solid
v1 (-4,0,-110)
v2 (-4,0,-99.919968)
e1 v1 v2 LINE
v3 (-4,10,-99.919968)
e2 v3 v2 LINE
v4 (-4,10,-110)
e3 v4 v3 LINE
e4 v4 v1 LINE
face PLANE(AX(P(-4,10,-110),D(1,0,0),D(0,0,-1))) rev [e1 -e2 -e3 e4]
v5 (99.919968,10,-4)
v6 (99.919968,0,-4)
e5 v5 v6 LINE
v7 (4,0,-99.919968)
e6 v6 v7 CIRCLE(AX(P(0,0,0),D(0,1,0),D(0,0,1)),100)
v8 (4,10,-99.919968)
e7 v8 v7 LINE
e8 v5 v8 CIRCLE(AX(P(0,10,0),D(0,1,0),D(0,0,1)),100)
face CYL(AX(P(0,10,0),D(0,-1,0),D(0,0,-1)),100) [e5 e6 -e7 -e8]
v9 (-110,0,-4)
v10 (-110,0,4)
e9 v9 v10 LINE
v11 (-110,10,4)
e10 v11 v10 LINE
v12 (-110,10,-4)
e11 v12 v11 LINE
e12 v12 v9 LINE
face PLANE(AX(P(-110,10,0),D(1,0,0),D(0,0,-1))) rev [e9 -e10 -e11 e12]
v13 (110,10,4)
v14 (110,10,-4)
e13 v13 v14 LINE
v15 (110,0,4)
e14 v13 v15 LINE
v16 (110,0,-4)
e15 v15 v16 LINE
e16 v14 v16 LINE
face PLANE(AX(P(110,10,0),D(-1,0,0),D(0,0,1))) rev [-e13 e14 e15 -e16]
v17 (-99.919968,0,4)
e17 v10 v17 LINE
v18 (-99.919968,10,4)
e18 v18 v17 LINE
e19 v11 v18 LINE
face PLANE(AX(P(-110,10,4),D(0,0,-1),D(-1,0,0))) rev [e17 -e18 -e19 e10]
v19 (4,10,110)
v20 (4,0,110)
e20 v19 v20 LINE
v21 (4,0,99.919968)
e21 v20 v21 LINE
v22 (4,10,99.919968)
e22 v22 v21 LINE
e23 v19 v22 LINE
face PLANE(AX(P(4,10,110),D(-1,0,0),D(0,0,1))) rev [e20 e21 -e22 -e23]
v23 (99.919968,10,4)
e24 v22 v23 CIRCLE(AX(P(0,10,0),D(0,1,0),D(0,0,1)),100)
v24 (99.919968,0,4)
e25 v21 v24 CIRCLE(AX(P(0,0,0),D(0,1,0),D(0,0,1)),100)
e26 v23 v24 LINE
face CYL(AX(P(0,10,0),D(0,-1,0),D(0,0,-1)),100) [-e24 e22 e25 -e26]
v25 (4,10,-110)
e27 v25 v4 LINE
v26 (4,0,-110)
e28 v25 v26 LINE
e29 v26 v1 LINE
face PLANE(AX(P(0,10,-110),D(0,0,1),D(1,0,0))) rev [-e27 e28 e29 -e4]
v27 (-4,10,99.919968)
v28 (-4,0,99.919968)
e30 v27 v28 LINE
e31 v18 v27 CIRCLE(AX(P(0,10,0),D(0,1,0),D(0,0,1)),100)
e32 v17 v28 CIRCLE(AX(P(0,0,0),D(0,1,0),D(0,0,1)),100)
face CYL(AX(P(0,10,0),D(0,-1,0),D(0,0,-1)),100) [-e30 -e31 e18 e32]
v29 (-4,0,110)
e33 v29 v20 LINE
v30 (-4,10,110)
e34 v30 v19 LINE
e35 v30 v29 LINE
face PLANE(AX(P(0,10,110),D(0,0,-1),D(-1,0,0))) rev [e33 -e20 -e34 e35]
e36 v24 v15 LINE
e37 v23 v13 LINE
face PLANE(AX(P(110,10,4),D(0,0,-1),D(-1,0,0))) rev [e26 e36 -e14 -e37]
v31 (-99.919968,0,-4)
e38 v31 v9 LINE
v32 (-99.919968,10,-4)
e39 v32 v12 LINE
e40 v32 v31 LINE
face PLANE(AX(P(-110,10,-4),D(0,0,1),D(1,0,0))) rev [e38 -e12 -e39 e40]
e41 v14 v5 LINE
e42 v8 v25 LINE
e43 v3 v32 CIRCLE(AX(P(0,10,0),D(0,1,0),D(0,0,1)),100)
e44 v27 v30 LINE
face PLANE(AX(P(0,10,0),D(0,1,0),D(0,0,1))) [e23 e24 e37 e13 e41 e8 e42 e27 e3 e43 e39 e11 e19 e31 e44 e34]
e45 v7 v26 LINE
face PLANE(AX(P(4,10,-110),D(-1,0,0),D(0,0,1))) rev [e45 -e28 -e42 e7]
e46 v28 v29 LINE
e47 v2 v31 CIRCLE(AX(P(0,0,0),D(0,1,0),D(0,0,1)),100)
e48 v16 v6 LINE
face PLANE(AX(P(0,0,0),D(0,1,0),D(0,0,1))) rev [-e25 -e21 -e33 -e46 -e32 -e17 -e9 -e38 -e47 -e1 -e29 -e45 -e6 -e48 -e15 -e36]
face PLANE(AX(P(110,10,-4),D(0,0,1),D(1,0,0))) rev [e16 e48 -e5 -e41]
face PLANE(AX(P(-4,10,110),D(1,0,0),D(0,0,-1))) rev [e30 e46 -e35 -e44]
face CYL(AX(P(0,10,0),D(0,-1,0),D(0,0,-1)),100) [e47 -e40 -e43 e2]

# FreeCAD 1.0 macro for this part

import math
import FreeCAD as App
import Part
import Sketcher

V = App.Vector

doc = App.newDocument("Part")
params = doc.addObject("Spreadsheet::Sheet", "Params")
for row, (alias, value) in enumerate([
    ("sketch1_radius", "100 mm"),
    ("sketch1_width", "8 mm"),
    ("pad1_length", "10 mm"),
], start=1):
    params.set(f"A{row}", alias)
    params.set(f"B{row}", "=" + value)
    params.setAlias(f"B{row}", alias)

body = doc.addObject("PartDesign::Body", "Body")

sketch1 = body.newObject("Sketcher::SketchObject", "Sketch")
sketch1.AttachmentSupport = (doc.getObject("XZ_Plane"), [""])
sketch1.MapMode = "FlatFace"
sketch1.addGeometry(Part.LineSegment(V(-4, -110, 0), V(-4, -100, 0)), False)
sketch1.addGeometry(Part.ArcOfCircle(Part.Circle(V(0, 0, 0), V(0, 0, 1), 100), math.radians(-178), math.radians(-92)), False)
sketch1.addGeometry(Part.LineSegment(V(-100, -4, 0), V(-110, -4, 0)), False)
sketch1.addGeometry(Part.LineSegment(V(-110, -4, 0), V(-110, 4, 0)), False)
sketch1.addGeometry(Part.LineSegment(V(-110, 4, 0), V(-100, 4, 0)), False)
sketch1.addGeometry(Part.ArcOfCircle(Part.Circle(V(0, 0, 0), V(0, 0, 1), 100), math.radians(92), math.radians(178)), False)
sketch1.addGeometry(Part.LineSegment(V(-4, 100, 0), V(-4, 110, 0)), False)
sketch1.addGeometry(Part.LineSegment(V(-4, 110, 0), V(4, 110, 0)), False)
sketch1.addGeometry(Part.LineSegment(V(4, 110, 0), V(4, 100, 0)), False)
sketch1.addGeometry(Part.ArcOfCircle(Part.Circle(V(0, 0, 0), V(0, 0, 1), 100), math.radians(2), math.radians(88)), False)
sketch1.addGeometry(Part.LineSegment(V(100, 4, 0), V(110, 4, 0)), False)
sketch1.addGeometry(Part.LineSegment(V(110, 4, 0), V(110, -4, 0)), False)
sketch1.addGeometry(Part.LineSegment(V(110, -4, 0), V(100, -4, 0)), False)
sketch1.addGeometry(Part.ArcOfCircle(Part.Circle(V(0, 0, 0), V(0, 0, 1), 100), math.radians(-88), math.radians(-2)), False)
sketch1.addGeometry(Part.LineSegment(V(4, -100, 0), V(4, -110, 0)), False)
sketch1.addGeometry(Part.LineSegment(V(4, -110, 0), V(-4, -110, 0)), False)
sketch1.addConstraint(Sketcher.Constraint("Coincident", 0, 2, 1, 2))
sketch1.addConstraint(Sketcher.Constraint("Coincident", 1, 1, 2, 1))
sketch1.addConstraint(Sketcher.Constraint("Coincident", 2, 2, 3, 1))
sketch1.addConstraint(Sketcher.Constraint("Coincident", 3, 2, 4, 1))
sketch1.addConstraint(Sketcher.Constraint("Coincident", 4, 2, 5, 2))
sketch1.addConstraint(Sketcher.Constraint("Coincident", 5, 1, 6, 1))
sketch1.addConstraint(Sketcher.Constraint("Coincident", 6, 2, 7, 1))
sketch1.addConstraint(Sketcher.Constraint("Coincident", 7, 2, 8, 1))
sketch1.addConstraint(Sketcher.Constraint("Coincident", 8, 2, 9, 2))
sketch1.addConstraint(Sketcher.Constraint("Coincident", 9, 1, 10, 1))
sketch1.addConstraint(Sketcher.Constraint("Coincident", 10, 2, 11, 1))
sketch1.addConstraint(Sketcher.Constraint("Coincident", 11, 2, 12, 1))
sketch1.addConstraint(Sketcher.Constraint("Coincident", 12, 2, 13, 2))
sketch1.addConstraint(Sketcher.Constraint("Coincident", 13, 1, 14, 1))
sketch1.addConstraint(Sketcher.Constraint("Coincident", 14, 2, 15, 1))
sketch1.addConstraint(Sketcher.Constraint("Coincident", 15, 2, 0, 1))
sketch1.addConstraint(Sketcher.Constraint("Vertical", 0))
sketch1.addConstraint(Sketcher.Constraint("Horizontal", 2))
sketch1.addConstraint(Sketcher.Constraint("Vertical", 3))
sketch1.addConstraint(Sketcher.Constraint("Horizontal", 4))
sketch1.addConstraint(Sketcher.Constraint("Vertical", 6))
sketch1.addConstraint(Sketcher.Constraint("Horizontal", 7))
sketch1.addConstraint(Sketcher.Constraint("Vertical", 8))
sketch1.addConstraint(Sketcher.Constraint("Horizontal", 10))
sketch1.addConstraint(Sketcher.Constraint("Vertical", 11))
sketch1.addConstraint(Sketcher.Constraint("Horizontal", 12))
sketch1.addConstraint(Sketcher.Constraint("Vertical", 14))
sketch1.addConstraint(Sketcher.Constraint("Horizontal", 15))
sketch1.addConstraint(Sketcher.Constraint("Coincident", 1, 3, -1, 1))
sketch1.addConstraint(Sketcher.Constraint("Coincident", 5, 3, -1, 1))
sketch1.addConstraint(Sketcher.Constraint("Coincident", 9, 3, -1, 1))
sketch1.addConstraint(Sketcher.Constraint("Coincident", 13, 3, -1, 1))
sketch1.addConstraint(Sketcher.Constraint("Equal", 1, 5))
sketch1.addConstraint(Sketcher.Constraint("Equal", 5, 9))
sketch1.addConstraint(Sketcher.Constraint("Equal", 9, 13))
sketch1.addConstraint(Sketcher.Constraint("Symmetric", 2, 2, 10, 2, -1, 1))
sketch1.addConstraint(Sketcher.Constraint("Symmetric", 6, 2, 14, 2, -1, 1))
sketch1.addConstraint(Sketcher.Constraint("Horizontal", 5, 1, 8, 2))
sketch1.addConstraint(Sketcher.Constraint("Horizontal", 4, 2, 9, 1))
sketch1.addConstraint(Sketcher.Constraint("Horizontal", 2, 2, 11, 2))
sketch1.addConstraint(Sketcher.Constraint("Horizontal", 0, 2, 13, 1))
sketch1.addConstraint(Sketcher.Constraint("Equal", 12, 0))
sketch1.addConstraint(Sketcher.Constraint("Equal", 15, 3))
sketch1.addConstraint(Sketcher.Constraint("Radius", 1, 100.0))
sketch1.addConstraint(Sketcher.Constraint("DistanceX", 7, 1, 7, 2, 8.0))
sketch1.addConstraint(Sketcher.Constraint("DistanceX", 2, 2, -1, 1, 110.0))
sketch1.setExpression("Constraints[43]", "Params.sketch1_radius")
sketch1.setExpression("Constraints[44]", "Params.sketch1_width")
pad1 = body.newObject("PartDesign::Pad", "Pad")
pad1.Profile = sketch1
pad1.setExpression("Length", "Params.pad1_length")
pad1.Reversed = True

doc.recompute()
